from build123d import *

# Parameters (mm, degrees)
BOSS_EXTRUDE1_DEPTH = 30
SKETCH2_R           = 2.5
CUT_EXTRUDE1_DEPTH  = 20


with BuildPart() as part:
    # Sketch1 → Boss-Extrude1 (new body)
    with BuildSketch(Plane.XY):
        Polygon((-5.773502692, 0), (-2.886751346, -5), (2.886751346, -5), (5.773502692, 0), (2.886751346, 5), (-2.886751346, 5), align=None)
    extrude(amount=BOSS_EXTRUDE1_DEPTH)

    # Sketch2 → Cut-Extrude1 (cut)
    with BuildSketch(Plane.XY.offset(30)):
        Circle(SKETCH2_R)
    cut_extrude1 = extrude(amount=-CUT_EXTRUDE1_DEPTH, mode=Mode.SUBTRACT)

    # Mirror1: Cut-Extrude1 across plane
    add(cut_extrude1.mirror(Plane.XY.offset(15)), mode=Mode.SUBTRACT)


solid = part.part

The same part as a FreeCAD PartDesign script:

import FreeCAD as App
import Part
import Sketcher
Q = App.Units.Quantity

doc = App.newDocument("Part")
body = doc.addObject("PartDesign::Body", "Body")

# Sketch on XY plane
sketch1 = doc.addObject("Sketcher::SketchObject", "Sketch")
body.addObject(sketch1)
sketch1.AttachmentSupport = (doc.XY_Plane, [""])
sketch1.MapMode = "FlatFace"
sketch1.addGeometry(Part.LineSegment(App.Vector(-6, 0, 0), App.Vector(-3, -5, 0)), False)
sketch1.addGeometry(Part.LineSegment(App.Vector(-3, -5, 0), App.Vector(3, -5, 0)), False)
sketch1.addGeometry(Part.LineSegment(App.Vector(3, -5, 0), App.Vector(6, 0, 0)), False)
sketch1.addGeometry(Part.LineSegment(App.Vector(6, 0, 0), App.Vector(3, 5, 0)), False)
sketch1.addGeometry(Part.LineSegment(App.Vector(3, 5, 0), App.Vector(-3, 5, 0)), False)
sketch1.addGeometry(Part.LineSegment(App.Vector(-3, 5, 0), App.Vector(-6, 0, 0)), False)
sketch1.addConstraint(Sketcher.Constraint("Coincident", 0, 2, 1, 1))
sketch1.addConstraint(Sketcher.Constraint("Coincident", 1, 2, 2, 1))
sketch1.addConstraint(Sketcher.Constraint("Coincident", 2, 2, 3, 1))
sketch1.addConstraint(Sketcher.Constraint("Coincident", 3, 2, 4, 1))
sketch1.addConstraint(Sketcher.Constraint("Coincident", 4, 2, 5, 1))
sketch1.addConstraint(Sketcher.Constraint("Coincident", 5, 2, 0, 1))
sketch1.addConstraint(Sketcher.Constraint("Horizontal", 1))
sketch1.addConstraint(Sketcher.Constraint("Horizontal", 4))
sketch1.addConstraint(Sketcher.Constraint("Symmetric", 0, 2, 3, 2, -1, 1))
sketch1.addConstraint(Sketcher.Constraint("Symmetric", 2, 2, 5, 2, -1, 1))
sketch1.addConstraint(Sketcher.Constraint("PointOnObject", 2, 2, -1))
sketch1.addConstraint(Sketcher.Constraint("Parallel", 2, 5))
sketch1.addConstraint(Sketcher.Constraint("Vertical", 1, 2, 3, 2))
sketch1.addConstraint(Sketcher.Constraint("Angle", 0, Q("-60 deg")))
sketch1.addConstraint(Sketcher.Constraint("DistanceY", 0, 2, -1, 1, 5.0))
sketch1.addConstraint(Sketcher.Constraint("DistanceX", 1, 1, 1, 2, 5.773503))
pad1 = doc.addObject("PartDesign::Pad", "Pad")
body.addObject(pad1)
pad1.Profile = sketch1
pad1.Length = 30

# Sketch on XY plane
sketch2 = doc.addObject("Sketcher::SketchObject", "Sketch001")
body.addObject(sketch2)
sketch2.AttachmentSupport = (doc.XY_Plane, [""])
sketch2.MapMode = "FlatFace"
sketch2.AttachmentOffset = App.Placement(App.Vector(0, 0, 30), App.Rotation())
sketch2.addGeometry(Part.Circle(App.Vector(0, 0, 0), App.Vector(0, 0, 1), 2.5), False)
sketch2.addConstraint(Sketcher.Constraint("Coincident", 0, 3, -1, 1))
sketch2.addConstraint(Sketcher.Constraint("Diameter", 0, 5.0))
pocket1 = doc.addObject("PartDesign::Pocket", "Pocket")
body.addObject(pocket1)
pocket1.Profile = sketch2
pocket1.Length = 20
doc.recompute()

datumplane = doc.addObject("PartDesign::Plane", "DatumPlane")
body.addObject(datumplane)
datumplane.AttachmentSupport = (doc.XY_Plane, [""])
datumplane.MapMode = "FlatFace"
datumplane.AttachmentOffset = App.Placement(App.Vector(0, 0, 15), App.Rotation())
mirrored = doc.addObject("PartDesign::Mirrored", "Mirrored")
body.addObject(mirrored)
mirrored.Originals = [pocket1]
mirrored.MirrorPlane = (datumplane, [""])
body.Tip = mirrored

doc.recompute()
